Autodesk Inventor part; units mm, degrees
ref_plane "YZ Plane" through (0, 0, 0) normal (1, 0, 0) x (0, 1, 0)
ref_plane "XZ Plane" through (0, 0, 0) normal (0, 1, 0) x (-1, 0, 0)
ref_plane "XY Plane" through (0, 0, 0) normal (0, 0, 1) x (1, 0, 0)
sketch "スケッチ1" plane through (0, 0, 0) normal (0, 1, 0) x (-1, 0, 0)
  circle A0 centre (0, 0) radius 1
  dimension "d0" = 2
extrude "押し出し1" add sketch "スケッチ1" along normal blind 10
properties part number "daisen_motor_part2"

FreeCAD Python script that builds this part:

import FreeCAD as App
import Part
import Sketcher

V = App.Vector

doc = App.newDocument("Part")
params = doc.addObject("Spreadsheet::Sheet", "Params")
for row, (alias, value) in enumerate([
    ("sketch1_diameter", "2 mm"),
    ("pad1_length", "10 mm"),
], start=1):
    params.set(f"A{row}", alias)
    params.set(f"B{row}", "=" + value)
    params.setAlias(f"B{row}", alias)

body = doc.addObject("PartDesign::Body", "Body")

# Sketch on XZ plane
sketch1 = body.newObject("Sketcher::SketchObject", "Sketch")
sketch1.AttachmentSupport = (doc.getObject("XZ_Plane"), [""])
sketch1.MapMode = "FlatFace"
sketch1.addGeometry(Part.Circle(V(0, 0, 0), V(0, 0, 1), 1), False)
sketch1.addConstraint(Sketcher.Constraint("Coincident", 0, 3, -1, 1))
sketch1.addConstraint(Sketcher.Constraint("Diameter", 0, 2.0))
sketch1.setExpression("Constraints[1]", "Params.sketch1_diameter")
pad1 = body.newObject("PartDesign::Pad", "Pad")
pad1.Profile = sketch1
pad1.setExpression("Length", "Params.pad1_length")
pad1.Reversed = True

doc.recompute()
